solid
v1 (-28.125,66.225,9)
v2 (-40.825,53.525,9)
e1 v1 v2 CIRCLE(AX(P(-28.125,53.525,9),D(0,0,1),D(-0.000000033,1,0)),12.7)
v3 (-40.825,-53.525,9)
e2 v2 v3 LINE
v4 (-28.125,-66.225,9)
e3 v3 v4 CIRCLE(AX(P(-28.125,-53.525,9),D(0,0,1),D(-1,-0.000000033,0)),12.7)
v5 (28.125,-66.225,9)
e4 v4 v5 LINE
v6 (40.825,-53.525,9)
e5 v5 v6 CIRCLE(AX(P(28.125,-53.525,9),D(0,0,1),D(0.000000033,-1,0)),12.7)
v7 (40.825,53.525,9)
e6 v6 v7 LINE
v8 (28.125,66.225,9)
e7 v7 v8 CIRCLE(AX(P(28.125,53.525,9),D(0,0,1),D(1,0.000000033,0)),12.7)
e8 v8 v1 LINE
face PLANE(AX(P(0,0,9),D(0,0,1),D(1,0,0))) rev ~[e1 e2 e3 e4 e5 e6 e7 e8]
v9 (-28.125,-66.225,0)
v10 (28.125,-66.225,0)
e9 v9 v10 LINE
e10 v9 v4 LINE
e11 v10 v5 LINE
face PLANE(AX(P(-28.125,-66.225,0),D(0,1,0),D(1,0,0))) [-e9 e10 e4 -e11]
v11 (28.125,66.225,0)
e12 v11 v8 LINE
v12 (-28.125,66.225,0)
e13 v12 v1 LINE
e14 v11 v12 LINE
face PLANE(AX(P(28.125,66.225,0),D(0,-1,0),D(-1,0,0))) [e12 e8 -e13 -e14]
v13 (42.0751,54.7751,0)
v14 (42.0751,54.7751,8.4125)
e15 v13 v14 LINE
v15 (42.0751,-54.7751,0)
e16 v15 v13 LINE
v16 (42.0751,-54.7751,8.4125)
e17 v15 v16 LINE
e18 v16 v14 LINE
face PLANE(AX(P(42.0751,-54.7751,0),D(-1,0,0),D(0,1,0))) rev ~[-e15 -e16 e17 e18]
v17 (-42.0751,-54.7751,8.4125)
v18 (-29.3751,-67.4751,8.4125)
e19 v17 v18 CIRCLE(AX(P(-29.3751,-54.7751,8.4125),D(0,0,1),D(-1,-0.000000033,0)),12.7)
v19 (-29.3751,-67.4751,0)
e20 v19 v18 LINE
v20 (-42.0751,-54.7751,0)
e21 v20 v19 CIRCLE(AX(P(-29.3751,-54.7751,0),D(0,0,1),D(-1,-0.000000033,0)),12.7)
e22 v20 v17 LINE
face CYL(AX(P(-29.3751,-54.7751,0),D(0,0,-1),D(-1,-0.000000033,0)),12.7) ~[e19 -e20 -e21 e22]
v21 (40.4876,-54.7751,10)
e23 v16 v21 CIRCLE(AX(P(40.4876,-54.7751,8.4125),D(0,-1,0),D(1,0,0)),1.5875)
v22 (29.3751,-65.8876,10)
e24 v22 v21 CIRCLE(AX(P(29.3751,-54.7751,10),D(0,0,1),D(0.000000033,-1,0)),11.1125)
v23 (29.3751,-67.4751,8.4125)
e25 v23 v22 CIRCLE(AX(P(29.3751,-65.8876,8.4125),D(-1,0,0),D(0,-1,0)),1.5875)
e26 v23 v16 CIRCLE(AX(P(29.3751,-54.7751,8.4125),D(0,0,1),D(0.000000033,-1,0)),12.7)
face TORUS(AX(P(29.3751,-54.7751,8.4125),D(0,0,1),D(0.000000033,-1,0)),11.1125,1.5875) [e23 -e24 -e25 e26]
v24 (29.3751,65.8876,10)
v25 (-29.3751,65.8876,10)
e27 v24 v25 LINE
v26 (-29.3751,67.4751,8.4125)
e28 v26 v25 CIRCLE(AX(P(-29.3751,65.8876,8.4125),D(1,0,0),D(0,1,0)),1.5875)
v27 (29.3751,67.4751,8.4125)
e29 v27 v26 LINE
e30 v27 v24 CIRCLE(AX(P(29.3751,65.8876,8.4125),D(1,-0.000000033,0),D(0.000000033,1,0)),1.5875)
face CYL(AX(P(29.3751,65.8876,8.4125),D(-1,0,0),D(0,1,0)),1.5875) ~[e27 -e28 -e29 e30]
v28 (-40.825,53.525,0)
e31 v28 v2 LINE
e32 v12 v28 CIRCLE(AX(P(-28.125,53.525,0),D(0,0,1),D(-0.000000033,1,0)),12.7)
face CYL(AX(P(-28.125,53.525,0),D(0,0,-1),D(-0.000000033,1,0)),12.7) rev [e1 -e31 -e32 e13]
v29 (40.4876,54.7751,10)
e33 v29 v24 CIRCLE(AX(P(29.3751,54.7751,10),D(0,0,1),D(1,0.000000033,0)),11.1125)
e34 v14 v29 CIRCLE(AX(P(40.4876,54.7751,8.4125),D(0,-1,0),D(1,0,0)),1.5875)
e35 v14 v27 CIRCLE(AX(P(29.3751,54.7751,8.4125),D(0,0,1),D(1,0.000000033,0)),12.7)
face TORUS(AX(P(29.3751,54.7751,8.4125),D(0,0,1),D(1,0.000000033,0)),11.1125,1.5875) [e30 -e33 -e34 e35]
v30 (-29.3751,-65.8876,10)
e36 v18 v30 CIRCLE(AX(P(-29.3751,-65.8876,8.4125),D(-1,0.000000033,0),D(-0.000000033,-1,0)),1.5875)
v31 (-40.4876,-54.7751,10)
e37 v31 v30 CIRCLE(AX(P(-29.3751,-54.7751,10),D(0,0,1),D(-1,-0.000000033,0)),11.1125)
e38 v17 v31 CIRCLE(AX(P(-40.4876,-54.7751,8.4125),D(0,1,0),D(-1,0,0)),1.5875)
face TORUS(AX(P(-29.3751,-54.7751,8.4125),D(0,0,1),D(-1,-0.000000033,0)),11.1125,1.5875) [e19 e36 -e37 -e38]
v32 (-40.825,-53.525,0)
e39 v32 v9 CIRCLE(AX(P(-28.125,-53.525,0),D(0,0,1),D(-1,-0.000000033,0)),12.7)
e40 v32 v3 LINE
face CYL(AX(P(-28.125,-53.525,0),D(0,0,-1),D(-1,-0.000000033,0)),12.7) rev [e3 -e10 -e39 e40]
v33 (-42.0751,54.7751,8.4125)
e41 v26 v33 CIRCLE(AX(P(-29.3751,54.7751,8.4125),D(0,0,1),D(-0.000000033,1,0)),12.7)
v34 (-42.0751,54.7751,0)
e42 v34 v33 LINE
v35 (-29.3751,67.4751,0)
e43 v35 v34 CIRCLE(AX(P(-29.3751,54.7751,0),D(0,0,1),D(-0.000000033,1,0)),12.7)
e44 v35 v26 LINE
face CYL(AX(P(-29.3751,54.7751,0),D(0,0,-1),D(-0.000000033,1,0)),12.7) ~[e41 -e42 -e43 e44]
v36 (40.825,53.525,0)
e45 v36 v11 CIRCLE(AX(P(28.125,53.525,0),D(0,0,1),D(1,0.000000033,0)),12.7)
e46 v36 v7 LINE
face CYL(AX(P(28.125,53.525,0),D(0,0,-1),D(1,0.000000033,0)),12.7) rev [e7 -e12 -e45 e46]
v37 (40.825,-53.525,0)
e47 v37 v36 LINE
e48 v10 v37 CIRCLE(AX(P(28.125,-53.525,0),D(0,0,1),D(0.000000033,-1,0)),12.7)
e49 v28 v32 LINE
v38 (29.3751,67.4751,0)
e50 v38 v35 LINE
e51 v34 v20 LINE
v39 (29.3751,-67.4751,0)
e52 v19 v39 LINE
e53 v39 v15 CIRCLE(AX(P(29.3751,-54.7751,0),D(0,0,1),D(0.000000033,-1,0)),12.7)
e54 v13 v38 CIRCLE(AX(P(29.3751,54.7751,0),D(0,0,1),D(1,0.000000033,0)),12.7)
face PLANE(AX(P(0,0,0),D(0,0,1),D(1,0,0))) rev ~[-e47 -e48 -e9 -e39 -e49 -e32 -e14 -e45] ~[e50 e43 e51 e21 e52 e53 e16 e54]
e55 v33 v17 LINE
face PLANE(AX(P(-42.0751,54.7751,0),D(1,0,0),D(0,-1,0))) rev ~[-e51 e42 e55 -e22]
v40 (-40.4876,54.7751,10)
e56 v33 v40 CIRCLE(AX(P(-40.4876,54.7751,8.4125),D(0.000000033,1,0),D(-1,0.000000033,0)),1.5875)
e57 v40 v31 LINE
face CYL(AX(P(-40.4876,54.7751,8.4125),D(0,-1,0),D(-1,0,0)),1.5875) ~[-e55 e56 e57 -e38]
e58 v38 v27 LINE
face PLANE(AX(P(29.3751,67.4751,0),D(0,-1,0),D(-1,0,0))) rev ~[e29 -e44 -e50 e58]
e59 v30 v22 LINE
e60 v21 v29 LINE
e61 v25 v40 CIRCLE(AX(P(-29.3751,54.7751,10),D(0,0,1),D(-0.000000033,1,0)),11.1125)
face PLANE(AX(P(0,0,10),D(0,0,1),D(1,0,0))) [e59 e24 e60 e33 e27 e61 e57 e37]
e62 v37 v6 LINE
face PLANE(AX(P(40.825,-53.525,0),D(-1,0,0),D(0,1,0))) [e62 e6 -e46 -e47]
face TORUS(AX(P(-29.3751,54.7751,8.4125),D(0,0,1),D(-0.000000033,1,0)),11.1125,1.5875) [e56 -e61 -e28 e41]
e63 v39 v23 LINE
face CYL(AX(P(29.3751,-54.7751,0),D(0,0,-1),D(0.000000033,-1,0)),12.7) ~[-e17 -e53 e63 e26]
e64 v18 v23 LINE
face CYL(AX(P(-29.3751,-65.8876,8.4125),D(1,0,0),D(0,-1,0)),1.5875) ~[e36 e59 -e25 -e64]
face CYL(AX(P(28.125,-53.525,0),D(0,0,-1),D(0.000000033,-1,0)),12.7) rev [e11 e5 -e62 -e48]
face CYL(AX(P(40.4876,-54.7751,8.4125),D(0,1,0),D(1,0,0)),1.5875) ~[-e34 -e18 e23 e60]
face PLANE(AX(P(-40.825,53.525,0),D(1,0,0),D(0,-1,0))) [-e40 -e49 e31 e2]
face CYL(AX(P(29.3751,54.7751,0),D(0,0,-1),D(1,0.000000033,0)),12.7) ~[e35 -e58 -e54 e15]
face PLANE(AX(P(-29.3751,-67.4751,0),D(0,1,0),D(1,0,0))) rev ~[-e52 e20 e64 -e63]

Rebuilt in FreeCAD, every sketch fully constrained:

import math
import FreeCAD as App
import Part
import Sketcher
Q = App.Units.Quantity


def edges_at(feature, points):
    """Names of the edges that pass closest to the given points."""
    edges = feature.Shape.Edges
    near = lambda p: min(range(len(edges)), key=lambda i: edges[i].distToShape(Part.Vertex(*p))[0])
    return sorted({f"Edge{near(p) + 1}" for p in points})

doc = App.newDocument("Part")
params = doc.addObject("Spreadsheet::Sheet", "Params")
for row, (alias, value) in enumerate([
    ("sketch1_radius", "0.5 in"),
    ("sketch1_width", "2.313 in"),
    ("sketch1_height", "4.313 in"),
    ("pad1_length", "10 mm"),
    ("fillet_radius", "0.0625 in"),
    ("sketch2_radius", "0.5 in"),
    ("pocket1_length", "9 mm"),
], start=1):
    params.set(f"A{row}", alias)
    params.set(f"B{row}", "=" + value)
    params.setAlias(f"B{row}", alias)

body = doc.addObject("PartDesign::Body", "Body")

# Sketch on XY plane
sketch1 = doc.addObject("Sketcher::SketchObject", "Sketch")
body.addObject(sketch1)
sketch1.AttachmentSupport = (doc.XY_Plane, [""])
sketch1.MapMode = "FlatFace"
sketch1.addGeometry(Part.ArcOfCircle(Part.Circle(App.Vector(29, 55, 0), App.Vector(0, 0, 1), 13), math.radians(0), math.radians(90)), False)
sketch1.addGeometry(Part.LineSegment(App.Vector(29, 67, 0), App.Vector(-29, 67, 0)), False)
sketch1.addGeometry(Part.ArcOfCircle(Part.Circle(App.Vector(-29, 55, 0), App.Vector(0, 0, 1), 13), math.radians(90), math.radians(180)), False)
sketch1.addGeometry(Part.LineSegment(App.Vector(-42, 55, 0), App.Vector(-42, -55, 0)), False)
sketch1.addGeometry(Part.ArcOfCircle(Part.Circle(App.Vector(-29, -55, 0), App.Vector(0, 0, 1), 13), math.radians(-180), math.radians(-90)), False)
sketch1.addGeometry(Part.LineSegment(App.Vector(-29, -67, 0), App.Vector(29, -67, 0)), False)
sketch1.addGeometry(Part.ArcOfCircle(Part.Circle(App.Vector(29, -55, 0), App.Vector(0, 0, 1), 13), math.radians(-90), math.radians(0)), False)
sketch1.addGeometry(Part.LineSegment(App.Vector(42, -55, 0), App.Vector(42, 55, 0)), False)
sketch1.addConstraint(Sketcher.Constraint("Tangent", 0, 2, 1, 1))
sketch1.addConstraint(Sketcher.Constraint("Tangent", 1, 2, 2, 1))
sketch1.addConstraint(Sketcher.Constraint("Tangent", 2, 2, 3, 1))
sketch1.addConstraint(Sketcher.Constraint("Tangent", 3, 2, 4, 1))
sketch1.addConstraint(Sketcher.Constraint("Tangent", 4, 2, 5, 1))
sketch1.addConstraint(Sketcher.Constraint("Tangent", 5, 2, 6, 1))
sketch1.addConstraint(Sketcher.Constraint("Tangent", 6, 2, 7, 1))
sketch1.addConstraint(Sketcher.Constraint("Tangent", 7, 2, 0, 1))
sketch1.addConstraint(Sketcher.Constraint("Horizontal", 1))
sketch1.addConstraint(Sketcher.Constraint("Vertical", 3))
sketch1.addConstraint(Sketcher.Constraint("Horizontal", 5))
sketch1.addConstraint(Sketcher.Constraint("Vertical", 7))
sketch1.addConstraint(Sketcher.Constraint("Equal", 0, 2))
sketch1.addConstraint(Sketcher.Constraint("Equal", 2, 4))
sketch1.addConstraint(Sketcher.Constraint("Equal", 4, 6))
sketch1.addConstraint(Sketcher.Constraint("Symmetric", 0, 3, 4, 3, -1, 1))
sketch1.addConstraint(Sketcher.Constraint("Radius", 0, Q("0.5 in")))
sketch1.addConstraint(Sketcher.Constraint("DistanceX", 1, 2, 1, 1, Q("2.313 in")))
sketch1.addConstraint(Sketcher.Constraint("DistanceY", 3, 2, 3, 1, Q("4.313 in")))
sketch1.setExpression("Constraints[16]", "Params.sketch1_radius")
sketch1.setExpression("Constraints[17]", "Params.sketch1_width")
sketch1.setExpression("Constraints[18]", "Params.sketch1_height")
pad1 = doc.addObject("PartDesign::Pad", "Pad")
body.addObject(pad1)
pad1.Profile = sketch1
pad1.setExpression("Length", "Params.pad1_length")
doc.recompute()

fillet = doc.addObject("PartDesign::Fillet", "Fillet")
body.addObject(fillet)
fillet.Base = (pad1, edges_at(pad1, [
    (42.075, 0, 10),
    (38.355, -63.755, 10),
    (0, -67.475, 10),
    (-38.355, -63.755, 10),
    (-42.075, 0, 10),
    (-38.355, 63.755, 10),
    (0, 67.475, 10),
    (38.355, 63.755, 10),
]))
fillet.setExpression("Radius", "Params.fillet_radius")

# Sketch on XY plane
sketch2 = doc.addObject("Sketcher::SketchObject", "Sketch001")
body.addObject(sketch2)
sketch2.AttachmentSupport = (doc.XY_Plane, [""])
sketch2.MapMode = "FlatFace"
sketch2.addGeometry(Part.LineSegment(App.Vector(-28, -66, 0), App.Vector(28, -66, 0)), False)
sketch2.addGeometry(Part.ArcOfCircle(Part.Circle(App.Vector(28, -54, 0), App.Vector(0, 0, 1), 13), math.radians(-90), math.radians(0)), False)
sketch2.addGeometry(Part.LineSegment(App.Vector(41, -54, 0), App.Vector(41, 54, 0)), False)
sketch2.addGeometry(Part.ArcOfCircle(Part.Circle(App.Vector(28, 54, 0), App.Vector(0, 0, 1), 13), math.radians(0), math.radians(90)), False)
sketch2.addGeometry(Part.LineSegment(App.Vector(28, 66, 0), App.Vector(-28, 66, 0)), False)
sketch2.addGeometry(Part.ArcOfCircle(Part.Circle(App.Vector(-28, 54, 0), App.Vector(0, 0, 1), 13), math.radians(90), math.radians(180)), False)
sketch2.addGeometry(Part.LineSegment(App.Vector(-41, 54, 0), App.Vector(-41, -54, 0)), False)
sketch2.addGeometry(Part.ArcOfCircle(Part.Circle(App.Vector(-28, -54, 0), App.Vector(0, 0, 1), 13), math.radians(-180), math.radians(-90)), False)
sketch2.addConstraint(Sketcher.Constraint("Tangent", 0, 2, 1, 1))
sketch2.addConstraint(Sketcher.Constraint("Tangent", 1, 2, 2, 1))
sketch2.addConstraint(Sketcher.Constraint("Tangent", 2, 2, 3, 1))
sketch2.addConstraint(Sketcher.Constraint("Tangent", 3, 2, 4, 1))
sketch2.addConstraint(Sketcher.Constraint("Tangent", 4, 2, 5, 1))
sketch2.addConstraint(Sketcher.Constraint("Tangent", 5, 2, 6, 1))
sketch2.addConstraint(Sketcher.Constraint("Tangent", 6, 2, 7, 1))
sketch2.addConstraint(Sketcher.Constraint("Tangent", 7, 2, 0, 1))
sketch2.addConstraint(Sketcher.Constraint("Horizontal", 0))
sketch2.addConstraint(Sketcher.Constraint("Vertical", 2))
sketch2.addConstraint(Sketcher.Constraint("Horizontal", 4))
sketch2.addConstraint(Sketcher.Constraint("Vertical", 6))
sketch2.addConstraint(Sketcher.Constraint("Equal", 1, 3))
sketch2.addConstraint(Sketcher.Constraint("Equal", 3, 5))
sketch2.addConstraint(Sketcher.Constraint("Equal", 5, 7))
sketch2.addConstraint(Sketcher.Constraint("Symmetric", 1, 3, 5, 3, -1, 1))
sketch2.addConstraint(Sketcher.Constraint("Radius", 1, Q("0.5 in")))
sketch2.addConstraint(Sketcher.Constraint("DistanceX", 0, 1, 0, 2, 56.25))
sketch2.addConstraint(Sketcher.Constraint("DistanceY", 2, 1, 2, 2, 107.05))
sketch2.setExpression("Constraints[16]", "Params.sketch2_radius")
pocket1 = doc.addObject("PartDesign::Pocket", "Pocket")
body.addObject(pocket1)
pocket1.Profile = sketch2
pocket1.setExpression("Length", "Params.pocket1_length")
pocket1.Reversed = True

doc.recompute()
